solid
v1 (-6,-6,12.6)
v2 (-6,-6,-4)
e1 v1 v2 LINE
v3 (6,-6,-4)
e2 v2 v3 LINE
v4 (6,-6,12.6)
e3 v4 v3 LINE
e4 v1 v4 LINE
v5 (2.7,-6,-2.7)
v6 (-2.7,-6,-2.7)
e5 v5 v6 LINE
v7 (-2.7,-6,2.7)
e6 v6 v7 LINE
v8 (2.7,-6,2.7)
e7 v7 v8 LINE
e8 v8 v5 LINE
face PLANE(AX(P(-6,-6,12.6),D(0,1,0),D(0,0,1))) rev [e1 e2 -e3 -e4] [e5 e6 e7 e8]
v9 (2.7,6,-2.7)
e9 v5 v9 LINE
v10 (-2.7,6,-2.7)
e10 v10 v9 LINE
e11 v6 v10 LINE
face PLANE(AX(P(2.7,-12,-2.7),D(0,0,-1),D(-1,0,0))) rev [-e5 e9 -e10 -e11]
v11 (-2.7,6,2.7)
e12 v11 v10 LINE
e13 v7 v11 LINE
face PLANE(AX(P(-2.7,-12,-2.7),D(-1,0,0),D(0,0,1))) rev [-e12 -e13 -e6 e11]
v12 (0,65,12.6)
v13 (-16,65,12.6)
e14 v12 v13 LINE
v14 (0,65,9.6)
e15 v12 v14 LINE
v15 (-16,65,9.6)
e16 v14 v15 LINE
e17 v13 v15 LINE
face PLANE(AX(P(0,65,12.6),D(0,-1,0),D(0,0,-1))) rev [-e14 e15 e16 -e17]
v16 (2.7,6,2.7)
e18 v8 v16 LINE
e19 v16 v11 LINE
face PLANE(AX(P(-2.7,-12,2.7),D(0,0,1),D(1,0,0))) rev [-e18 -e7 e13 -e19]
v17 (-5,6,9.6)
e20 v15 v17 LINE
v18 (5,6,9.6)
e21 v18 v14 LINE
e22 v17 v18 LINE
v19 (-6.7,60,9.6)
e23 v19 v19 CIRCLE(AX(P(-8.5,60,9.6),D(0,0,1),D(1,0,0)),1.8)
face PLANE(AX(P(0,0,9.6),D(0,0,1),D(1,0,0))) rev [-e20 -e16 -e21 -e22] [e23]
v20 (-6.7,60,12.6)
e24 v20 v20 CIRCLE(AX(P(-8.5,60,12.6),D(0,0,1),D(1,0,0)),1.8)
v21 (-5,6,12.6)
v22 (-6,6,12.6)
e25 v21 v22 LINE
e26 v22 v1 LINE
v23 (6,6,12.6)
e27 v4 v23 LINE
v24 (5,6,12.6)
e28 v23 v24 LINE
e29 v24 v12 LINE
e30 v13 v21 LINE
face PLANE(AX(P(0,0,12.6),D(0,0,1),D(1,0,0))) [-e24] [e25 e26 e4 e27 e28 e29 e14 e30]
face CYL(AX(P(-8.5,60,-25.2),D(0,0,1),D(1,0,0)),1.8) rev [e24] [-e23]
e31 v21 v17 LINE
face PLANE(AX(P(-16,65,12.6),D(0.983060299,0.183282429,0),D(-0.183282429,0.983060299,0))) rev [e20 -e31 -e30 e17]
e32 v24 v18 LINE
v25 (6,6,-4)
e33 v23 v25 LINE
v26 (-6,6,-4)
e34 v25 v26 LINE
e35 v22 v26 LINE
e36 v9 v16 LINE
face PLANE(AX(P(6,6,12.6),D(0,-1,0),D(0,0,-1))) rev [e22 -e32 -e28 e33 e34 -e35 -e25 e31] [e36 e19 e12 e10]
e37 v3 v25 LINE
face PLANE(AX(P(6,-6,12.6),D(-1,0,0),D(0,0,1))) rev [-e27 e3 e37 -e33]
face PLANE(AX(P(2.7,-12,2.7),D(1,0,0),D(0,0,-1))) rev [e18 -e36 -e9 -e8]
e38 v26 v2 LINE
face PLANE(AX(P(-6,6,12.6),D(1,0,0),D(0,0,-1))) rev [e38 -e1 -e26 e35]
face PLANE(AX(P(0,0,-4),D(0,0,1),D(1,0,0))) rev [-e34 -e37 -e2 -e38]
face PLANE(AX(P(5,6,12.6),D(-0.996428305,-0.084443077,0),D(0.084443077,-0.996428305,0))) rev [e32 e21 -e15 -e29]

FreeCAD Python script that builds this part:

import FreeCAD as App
import Part
import Sketcher

V = App.Vector
Q = App.Units.Quantity

doc = App.newDocument("Part")
body = doc.addObject("PartDesign::Body", "Body")

# Sketch on XY plane
sketch1 = body.newObject("Sketcher::SketchObject", "Sketch")
sketch1.AttachmentSupport = (doc.getObject("XY_Plane"), [""])
sketch1.MapMode = "FlatFace"
sketch1.AttachmentOffset = App.Placement(V(0, 0, -4), App.Rotation())
sketch1.addGeometry([
    Part.LineSegment(V(-6, 6, 0), V(-6, -6, 0)),
    Part.LineSegment(V(-6, -6, 0), V(6, -6, 0)),
    Part.LineSegment(V(6, -6, 0), V(6, 6, 0)),
    Part.LineSegment(V(6, 6, 0), V(-6, 6, 0)),
], False)
sketch1.addConstraint([
    Sketcher.Constraint("Coincident", 0, 2, 1, 1),
    Sketcher.Constraint("Coincident", 1, 2, 2, 1),
    Sketcher.Constraint("Coincident", 2, 2, 3, 1),
    Sketcher.Constraint("Coincident", 3, 2, 0, 1),
    Sketcher.Constraint("Vertical", 0),
    Sketcher.Constraint("Horizontal", 1),
    Sketcher.Constraint("Vertical", 2),
    Sketcher.Constraint("Horizontal", 3),
    Sketcher.Constraint("Symmetric", 0, 2, 2, 2, -1, 1),
    Sketcher.Constraint("Equal", 3, 0),
    Sketcher.Constraint("DistanceX", 1, 1, 1, 2, Q("12 mm")),
])
pad1 = body.newObject("PartDesign::Pad", "Pad")
pad1.Profile = sketch1
pad1.Length = 16.6

# Sketch on XZ plane
sketch2 = body.newObject("Sketcher::SketchObject", "Sketch001")
sketch2.AttachmentSupport = (doc.getObject("XZ_Plane"), [""])
sketch2.MapMode = "FlatFace"
sketch2.addGeometry([
    Part.LineSegment(V(-3, -3, 0), V(-3, 3, 0)),
    Part.LineSegment(V(-3, 3, 0), V(3, 3, 0)),
    Part.LineSegment(V(3, 3, 0), V(3, -3, 0)),
    Part.LineSegment(V(3, -3, 0), V(-3, -3, 0)),
], False)
sketch2.addConstraint([
    Sketcher.Constraint("Coincident", 0, 2, 1, 1),
    Sketcher.Constraint("Coincident", 1, 2, 2, 1),
    Sketcher.Constraint("Coincident", 2, 2, 3, 1),
    Sketcher.Constraint("Coincident", 3, 2, 0, 1),
    Sketcher.Constraint("Vertical", 0),
    Sketcher.Constraint("Horizontal", 1),
    Sketcher.Constraint("Vertical", 2),
    Sketcher.Constraint("Horizontal", 3),
    Sketcher.Constraint("Symmetric", 0, 2, 2, 2, -1, 1),
    Sketcher.Constraint("Equal", 3, 0),
    Sketcher.Constraint("DistanceX", 1, 1, 1, 2, Q("5.4 mm")),
])
pocket1 = body.newObject("PartDesign::Pocket", "Pocket")
pocket1.Profile = sketch2
pocket1.Length = 24
pocket1.Midplane = True

# Sketch on XY plane
sketch3 = body.newObject("Sketcher::SketchObject", "Sketch002")
sketch3.AttachmentSupport = (doc.getObject("XY_Plane"), [""])
sketch3.MapMode = "FlatFace"
sketch3.AttachmentOffset = App.Placement(V(0, 0, 9.6), App.Rotation())
sketch3.addGeometry([
    Part.LineSegment(V(-5, 6, 0), V(5, 6, 0)),
    Part.LineSegment(V(5, 6, 0), V(0, 65, 0)),
    Part.LineSegment(V(0, 65, 0), V(-16, 65, 0)),
    Part.LineSegment(V(-16, 65, 0), V(-5, 6, 0)),
], False)
sketch3.addConstraint([
    Sketcher.Constraint("Coincident", 0, 2, 1, 1),
    Sketcher.Constraint("Coincident", 1, 2, 2, 1),
    Sketcher.Constraint("Coincident", 2, 2, 3, 1),
    Sketcher.Constraint("Coincident", 3, 2, 0, 1),
    Sketcher.Constraint("Horizontal", 0),
    Sketcher.Constraint("Horizontal", 2),
    Sketcher.Constraint("PointOnObject", 1, 2, -2),
    Sketcher.Constraint("DistanceX", 0, 1, 0, 2, Q("10 mm")),
    Sketcher.Constraint("DistanceX", 2, 2, 2, 1, Q("16 mm")),
    Sketcher.Constraint("DistanceX", -1, 1, 0, 2, Q("5 mm")),
    Sketcher.Constraint("DistanceY", -1, 1, 0, 2, Q("6 mm")),
    Sketcher.Constraint("DistanceY", -1, 1, 1, 2, Q("65 mm")),
])
pad2 = body.newObject("PartDesign::Pad", "Pad001")
pad2.Profile = sketch3
pad2.Length = 3

# Sketch on XY plane
sketch4 = body.newObject("Sketcher::SketchObject", "Sketch003")
sketch4.AttachmentSupport = (doc.getObject("XY_Plane"), [""])
sketch4.MapMode = "FlatFace"
sketch4.addGeometry(Part.Circle(V(-8.5, 60, 0), V(0, 0, 1), 1.8), False)
sketch4.addConstraint([
    Sketcher.Constraint("Diameter", 0, Q("3.6 mm")),
    Sketcher.Constraint("DistanceY", -1, 1, 0, 3, Q("60 mm")),
    Sketcher.Constraint("DistanceX", 0, 3, -1, 1, Q("8.5 mm")),
])
pocket2 = body.newObject("PartDesign::Pocket", "Pocket001")
pocket2.Profile = sketch4
pocket2.Length = 50.4
pocket2.Midplane = True

doc.recompute()
